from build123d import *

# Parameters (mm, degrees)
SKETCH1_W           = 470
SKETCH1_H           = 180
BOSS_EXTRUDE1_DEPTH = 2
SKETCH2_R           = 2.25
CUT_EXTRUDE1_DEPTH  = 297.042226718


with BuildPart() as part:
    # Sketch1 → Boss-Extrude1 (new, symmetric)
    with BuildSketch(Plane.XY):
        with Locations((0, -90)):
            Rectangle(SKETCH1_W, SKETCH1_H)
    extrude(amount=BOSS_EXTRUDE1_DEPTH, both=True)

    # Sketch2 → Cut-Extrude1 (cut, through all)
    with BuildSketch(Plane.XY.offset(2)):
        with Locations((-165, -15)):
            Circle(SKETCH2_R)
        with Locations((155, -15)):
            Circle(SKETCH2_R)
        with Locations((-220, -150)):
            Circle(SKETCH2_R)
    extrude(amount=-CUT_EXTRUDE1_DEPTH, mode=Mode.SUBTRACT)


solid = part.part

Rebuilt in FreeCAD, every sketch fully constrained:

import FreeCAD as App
import Part
import Sketcher
from FreeCAD import Vector

doc = App.newDocument("Part")
body = doc.addObject("PartDesign::Body", "Body")

# Sketch on XY plane
sketch1 = body.newObject("Sketcher::SketchObject", "Sketch")
sketch1.AttachmentSupport = (doc.getObject("XY_Plane"), [""])
sketch1.MapMode = "FlatFace"
sketch1.addGeometry([
    Part.LineSegment(Vector(-235, 0, 0), Vector(-235, -180, 0)),
    Part.LineSegment(Vector(-235, -180, 0), Vector(235, -180, 0)),
    Part.LineSegment(Vector(235, -180, 0), Vector(235, 0, 0)),
    Part.LineSegment(Vector(235, 0, 0), Vector(-235, 0, 0)),
], False)
sketch1.addConstraint([
    Sketcher.Constraint("Coincident", 0, 2, 1, 1),
    Sketcher.Constraint("Coincident", 1, 2, 2, 1),
    Sketcher.Constraint("Coincident", 2, 2, 3, 1),
    Sketcher.Constraint("Coincident", 3, 2, 0, 1),
    Sketcher.Constraint("Vertical", 0),
    Sketcher.Constraint("Horizontal", 1),
    Sketcher.Constraint("Vertical", 2),
    Sketcher.Constraint("Horizontal", 3),
    Sketcher.Constraint("Symmetric", 2, 2, 3, 2, -1, 1),
    Sketcher.Constraint("DistanceX", 1, 1, 1, 2, 470.0),
    Sketcher.Constraint("DistanceY", 0, 2, 0, 1, 180.0),
])
pad1 = body.newObject("PartDesign::Pad", "Pad")
pad1.Profile = sketch1
pad1.Length = 4
pad1.Midplane = True

# Sketch on XY plane
sketch2 = body.newObject("Sketcher::SketchObject", "Sketch001")
sketch2.AttachmentSupport = (doc.getObject("XY_Plane"), [""])
sketch2.MapMode = "FlatFace"
sketch2.AttachmentOffset = App.Placement(Vector(0, 0, 2), App.Rotation())
sketch2.addGeometry([
    Part.Circle(Vector(-165, -15, 0), Vector(0, 0, 1), 2.2),
    Part.Circle(Vector(155, -15, 0), Vector(0, 0, 1), 2.2),
    Part.Circle(Vector(-220, -150, 0), Vector(0, 0, 1), 2.2),
], False)
sketch2.addConstraint([
    Sketcher.Constraint("Equal", 0, 1),
    Sketcher.Constraint("Equal", 1, 2),
    Sketcher.Constraint("Horizontal", 0, 3, 1, 3),
    Sketcher.Constraint("Diameter", 0, 4.5),
    Sketcher.Constraint("DistanceX", 0, 3, -1, 1, 165.0),
    Sketcher.Constraint("DistanceY", 0, 3, -1, 1, 15.0),
    Sketcher.Constraint("DistanceX", -1, 1, 1, 3, 155.0),
    Sketcher.Constraint("DistanceX", 2, 3, -1, 1, 220.0),
    Sketcher.Constraint("DistanceY", 2, 3, -1, 1, 150.0),
])
pocket1 = body.newObject("PartDesign::Pocket", "Pocket")
pocket1.Profile = sketch2
pocket1.Type = "ThroughAll"

doc.recompute()
